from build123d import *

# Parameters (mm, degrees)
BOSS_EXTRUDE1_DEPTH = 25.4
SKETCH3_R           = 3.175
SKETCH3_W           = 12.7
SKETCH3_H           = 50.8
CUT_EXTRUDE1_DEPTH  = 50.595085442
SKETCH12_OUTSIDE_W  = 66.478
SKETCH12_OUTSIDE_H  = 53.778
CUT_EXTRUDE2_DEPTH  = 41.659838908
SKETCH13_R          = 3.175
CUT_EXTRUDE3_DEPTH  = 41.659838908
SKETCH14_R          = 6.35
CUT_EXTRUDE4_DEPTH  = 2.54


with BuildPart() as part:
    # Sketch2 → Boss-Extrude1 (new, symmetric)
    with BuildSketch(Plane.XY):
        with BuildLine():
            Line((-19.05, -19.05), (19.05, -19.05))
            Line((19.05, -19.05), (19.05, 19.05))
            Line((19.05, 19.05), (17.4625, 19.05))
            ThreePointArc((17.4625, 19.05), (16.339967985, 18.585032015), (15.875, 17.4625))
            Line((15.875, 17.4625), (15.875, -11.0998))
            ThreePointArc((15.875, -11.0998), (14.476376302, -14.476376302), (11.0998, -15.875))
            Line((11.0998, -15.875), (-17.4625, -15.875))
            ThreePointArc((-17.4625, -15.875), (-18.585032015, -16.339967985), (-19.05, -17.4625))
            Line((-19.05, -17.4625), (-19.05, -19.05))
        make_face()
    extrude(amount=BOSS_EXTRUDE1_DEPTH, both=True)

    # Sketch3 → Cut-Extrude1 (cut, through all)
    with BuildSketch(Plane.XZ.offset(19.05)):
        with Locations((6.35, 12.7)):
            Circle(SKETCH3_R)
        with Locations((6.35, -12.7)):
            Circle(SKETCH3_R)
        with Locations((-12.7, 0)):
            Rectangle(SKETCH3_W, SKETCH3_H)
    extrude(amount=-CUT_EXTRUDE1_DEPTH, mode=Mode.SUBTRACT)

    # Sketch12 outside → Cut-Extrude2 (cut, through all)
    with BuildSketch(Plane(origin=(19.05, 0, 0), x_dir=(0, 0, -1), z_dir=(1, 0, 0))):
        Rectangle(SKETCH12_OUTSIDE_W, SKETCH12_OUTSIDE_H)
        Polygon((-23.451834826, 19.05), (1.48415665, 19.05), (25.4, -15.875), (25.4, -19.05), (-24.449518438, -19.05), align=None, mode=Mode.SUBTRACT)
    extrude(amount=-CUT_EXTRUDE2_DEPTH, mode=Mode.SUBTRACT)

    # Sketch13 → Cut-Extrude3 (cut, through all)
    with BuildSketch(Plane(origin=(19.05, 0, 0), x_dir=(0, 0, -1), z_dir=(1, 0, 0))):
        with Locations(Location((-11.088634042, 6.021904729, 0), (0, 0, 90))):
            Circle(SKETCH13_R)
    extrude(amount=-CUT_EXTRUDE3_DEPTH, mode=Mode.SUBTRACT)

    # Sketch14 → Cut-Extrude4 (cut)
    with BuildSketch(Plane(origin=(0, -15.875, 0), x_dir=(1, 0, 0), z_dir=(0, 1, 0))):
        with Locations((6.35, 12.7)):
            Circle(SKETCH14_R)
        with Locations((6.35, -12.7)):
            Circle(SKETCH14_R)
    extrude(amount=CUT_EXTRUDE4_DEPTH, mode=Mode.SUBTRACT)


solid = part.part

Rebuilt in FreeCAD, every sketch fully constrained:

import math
import FreeCAD as App
import Part
import Sketcher
Q = App.Units.Quantity

doc = App.newDocument("Part")
body = doc.addObject("PartDesign::Body", "Body")

# Sketch on XY plane
sketch1 = body.newObject("Sketcher::SketchObject", "Sketch")
sketch1.AttachmentSupport = (doc.getObject("XY_Plane"), [""])
sketch1.MapMode = "FlatFace"
sketch1.addGeometry([
    Part.LineSegment(App.Vector(-19.1, -19.1, 0), App.Vector(19.1, -19.1, 0)),  # 0
    Part.LineSegment(App.Vector(19.1, -19.1, 0), App.Vector(19.1, 19.1, 0)),  # 1
    Part.LineSegment(App.Vector(19.1, 19.1, 0), App.Vector(17.5, 19.1, 0)),  # 2
    Part.ArcOfCircle(Part.Circle(App.Vector(17.5, 17.5, 0), App.Vector(0, 0, 1), 1.6), math.radians(90), math.radians(180)),  # 3
    Part.LineSegment(App.Vector(15.9, 17.5, 0), App.Vector(15.9, -11.1, 0)),  # 4
    Part.ArcOfCircle(Part.Circle(App.Vector(11.1, -11.1, 0), App.Vector(0, 0, 1), 4.8), math.radians(-90), math.radians(0)),  # 5
    Part.LineSegment(App.Vector(11.1, -15.9, 0), App.Vector(-17.5, -15.9, 0)),  # 6
    Part.ArcOfCircle(Part.Circle(App.Vector(-17.5, -17.5, 0), App.Vector(0, 0, 1), 1.6), math.radians(90), math.radians(180)),  # 7
    Part.LineSegment(App.Vector(-19.1, -17.5, 0), App.Vector(-19.1, -19.1, 0)),  # 8
], False)
sketch1.addConstraint([
    Sketcher.Constraint("Coincident", 0, 2, 1, 1),
    Sketcher.Constraint("Coincident", 1, 2, 2, 1),
    Sketcher.Constraint("Tangent", 2, 2, 3, 1),
    Sketcher.Constraint("Tangent", 3, 2, 4, 1),
    Sketcher.Constraint("Tangent", 4, 2, 5, 2),
    Sketcher.Constraint("Tangent", 5, 1, 6, 1),
    Sketcher.Constraint("Tangent", 6, 2, 7, 1),
    Sketcher.Constraint("Tangent", 7, 2, 8, 1),
    Sketcher.Constraint("Coincident", 8, 2, 0, 1),
    Sketcher.Constraint("Horizontal", 0),
    Sketcher.Constraint("Vertical", 1),
    Sketcher.Constraint("Horizontal", 2),
    Sketcher.Constraint("Vertical", 4),
    Sketcher.Constraint("Horizontal", 6),
    Sketcher.Constraint("Vertical", 8),
    Sketcher.Constraint("Equal", 3, 7),
    Sketcher.Constraint("Symmetric", 3, 3, 7, 3, -1, 1),
    Sketcher.Constraint("Symmetric", 1, 2, 8, 2, -1, 1),
    Sketcher.Constraint("Equal", 0, 1),
    Sketcher.Constraint("DistanceX", 0, 1, 0, 2, Q("1.5 in")),
    Sketcher.Constraint("Radius", 3, Q("0.0625 in")),
    Sketcher.Constraint("Radius", 5, Q("0.188 in")),
])
pad1 = body.newObject("PartDesign::Pad", "Pad")
pad1.Profile = sketch1
pad1.Length = Q("2 in")
pad1.Midplane = True

# Sketch on XZ plane
sketch2 = body.newObject("Sketcher::SketchObject", "Sketch001")
sketch2.AttachmentSupport = (doc.getObject("XZ_Plane"), [""])
sketch2.MapMode = "FlatFace"
sketch2.AttachmentOffset = App.Placement(App.Vector(0, 0, 0.75 * 25.4), App.Rotation())
sketch2.addGeometry([
    Part.Circle(App.Vector(6.3, 12.7, 0), App.Vector(0, 0, 1), 3.2),  # 0
    Part.Circle(App.Vector(6.3, -12.7, 0), App.Vector(0, 0, 1), 3.2),  # 1
    Part.LineSegment(App.Vector(-19.1, 25.4, 0), App.Vector(-19.1, -25.4, 0)),  # 2
    Part.LineSegment(App.Vector(-19.1, -25.4, 0), App.Vector(-6.3, -25.4, 0)),  # 3
    Part.LineSegment(App.Vector(-6.3, -25.4, 0), App.Vector(-6.3, 25.4, 0)),  # 4
    Part.LineSegment(App.Vector(-6.3, 25.4, 0), App.Vector(-19.1, 25.4, 0)),  # 5
], False)
sketch2.addConstraint([
    Sketcher.Constraint("Coincident", 2, 2, 3, 1),
    Sketcher.Constraint("Coincident", 3, 2, 4, 1),
    Sketcher.Constraint("Coincident", 4, 2, 5, 1),
    Sketcher.Constraint("Coincident", 5, 2, 2, 1),
    Sketcher.Constraint("Vertical", 2),
    Sketcher.Constraint("Horizontal", 3),
    Sketcher.Constraint("Vertical", 4),
    Sketcher.Constraint("Horizontal", 5),
    Sketcher.Constraint("Equal", 0, 1),
    Sketcher.Constraint("Symmetric", 0, 3, 1, 3, -1),
    Sketcher.Constraint("Diameter", 0, Q("0.25 in")),
    Sketcher.Constraint("DistanceY", 2, 2, 2, 1, Q("2 in")),
    Sketcher.Constraint("DistanceX", 3, 1, 3, 2, Q("0.5 in")),
    Sketcher.Constraint("DistanceY", 2, 2, -1, 1, Q("1 in")),
    Sketcher.Constraint("DistanceY", 1, 3, 0, 3, Q("1 in")),
    Sketcher.Constraint("DistanceX", 2, 2, 1, 3, Q("1 in")),
    Sketcher.Constraint("DistanceX", -1, 1, 0, 3, Q("0.25 in")),
])
pocket1 = body.newObject("PartDesign::Pocket", "Pocket")
pocket1.Profile = sketch2
pocket1.Type = "ThroughAll"

# Sketch on YZ plane
sketch3 = body.newObject("Sketcher::SketchObject", "Sketch002")
sketch3.AttachmentSupport = (doc.getObject("YZ_Plane"), [""])
sketch3.MapMode = "FlatFace"
sketch3.AttachmentOffset = App.Placement(App.Vector(0, 0, 0.75 * 25.4), App.Rotation())
sketch3.addGeometry([
    Part.LineSegment(App.Vector(26.9, 33.2, 0), App.Vector(-26.9, 33.2, 0)),  # 0
    Part.LineSegment(App.Vector(-26.9, 33.2, 0), App.Vector(-26.9, -33.2, 0)),  # 1
    Part.LineSegment(App.Vector(-26.9, -33.2, 0), App.Vector(26.9, -33.2, 0)),  # 2
    Part.LineSegment(App.Vector(26.9, -33.2, 0), App.Vector(26.9, 33.2, 0)),  # 3
    Part.LineSegment(App.Vector(-19.1, 24.4, 0), App.Vector(19.1, 23.5, 0)),  # 4
    Part.LineSegment(App.Vector(19.1, 23.5, 0), App.Vector(19.1, -1.5, 0)),  # 5
    Part.LineSegment(App.Vector(19.1, -1.5, 0), App.Vector(-15.9, -25.4, 0)),  # 6
    Part.LineSegment(App.Vector(-15.9, -25.4, 0), App.Vector(-19.1, -25.4, 0)),  # 7
    Part.LineSegment(App.Vector(-19.1, -25.4, 0), App.Vector(-19.1, 24.4, 0)),  # 8
], False)
sketch3.addConstraint([
    Sketcher.Constraint("Coincident", 0, 2, 1, 1),
    Sketcher.Constraint("Coincident", 1, 2, 2, 1),
    Sketcher.Constraint("Coincident", 2, 2, 3, 1),
    Sketcher.Constraint("Coincident", 3, 2, 0, 1),
    Sketcher.Constraint("Coincident", 4, 2, 5, 1),
    Sketcher.Constraint("Coincident", 5, 2, 6, 1),
    Sketcher.Constraint("Coincident", 6, 2, 7, 1),
    Sketcher.Constraint("Coincident", 7, 2, 8, 1),
    Sketcher.Constraint("Coincident", 8, 2, 4, 1),
    Sketcher.Constraint("Horizontal", 0),
    Sketcher.Constraint("Vertical", 1),
    Sketcher.Constraint("Horizontal", 2),
    Sketcher.Constraint("Vertical", 3),
    Sketcher.Constraint("Vertical", 5),
    Sketcher.Constraint("Horizontal", 7),
    Sketcher.Constraint("Vertical", 8),
    Sketcher.Constraint("Symmetric", 0, 2, 2, 2, -1, 1),
    Sketcher.Constraint("DistanceY", 6, 2, -1, 1, Q("1 in")),
    Sketcher.Constraint("Angle", 4, Q("-1.5 deg")),
    Sketcher.Constraint("DistanceX", 7, 2, 5, 2, Q("1.5 in")),
    Sketcher.Constraint("DistanceX", 7, 2, 7, 1, Q("0.125 in")),
    Sketcher.Constraint("DistanceX", -1, 1, 4, 2, Q("0.75 in")),
    Sketcher.Constraint("DistanceX", 0, 2, 0, 1, 53.778),
    Sketcher.Constraint("DistanceY", 1, 2, 1, 1, 66.478),
    Sketcher.Constraint("DistanceY", 5, 2, 5, 1, 24.935991),
    Sketcher.Constraint("DistanceY", 8, 1, 8, 2, 49.849518),
])
pocket2 = body.newObject("PartDesign::Pocket", "Pocket001")
pocket2.Profile = sketch3
pocket2.Type = "ThroughAll"

# Sketch on YZ plane
sketch4 = body.newObject("Sketcher::SketchObject", "Sketch003")
sketch4.AttachmentSupport = (doc.getObject("YZ_Plane"), [""])
sketch4.MapMode = "FlatFace"
sketch4.AttachmentOffset = App.Placement(App.Vector(0, 0, 0.75 * 25.4), App.Rotation())
sketch4.addGeometry(Part.Circle(App.Vector(6, 11.1, 0), App.Vector(0, 0, 1), 3.2), False)
sketch4.addConstraint([
    Sketcher.Constraint("Diameter", 0, Q("0.25 in")),
    Sketcher.Constraint("DistanceX", -1, 1, 0, 3, 6.021905),
    Sketcher.Constraint("DistanceY", -1, 1, 0, 3, 11.088634),
])
pocket3 = body.newObject("PartDesign::Pocket", "Pocket002")
pocket3.Profile = sketch4
pocket3.Type = "ThroughAll"

# Sketch on XZ plane
sketch5 = body.newObject("Sketcher::SketchObject", "Sketch004")
sketch5.AttachmentSupport = (doc.getObject("XZ_Plane"), [""])
sketch5.MapMode = "FlatFace"
sketch5.AttachmentOffset = App.Placement(App.Vector(0, 0, 0.625 * 25.4), App.Rotation())
sketch5.addGeometry([
    Part.Circle(App.Vector(6, -13, 0), App.Vector(0, 0, 1), 6),
    Part.Circle(App.Vector(6, 13, 0), App.Vector(0, 0, 1), 6),
], False)
sketch5.addConstraint([
    Sketcher.Constraint("Equal", 0, 1),
    Sketcher.Constraint("Symmetric", 0, 3, 1, 3, -1),
    Sketcher.Constraint("Diameter", 0, Q("0.5 in")),
    Sketcher.Constraint("DistanceY", 0, 3, 1, 3, Q("1 in")),
    Sketcher.Constraint("DistanceX", -1, 1, 0, 3, Q("0.25 in")),
])
pocket4 = body.newObject("PartDesign::Pocket", "Pocket003")
pocket4.Profile = sketch5
pocket4.Length = Q("0.1 in")

doc.recompute()
